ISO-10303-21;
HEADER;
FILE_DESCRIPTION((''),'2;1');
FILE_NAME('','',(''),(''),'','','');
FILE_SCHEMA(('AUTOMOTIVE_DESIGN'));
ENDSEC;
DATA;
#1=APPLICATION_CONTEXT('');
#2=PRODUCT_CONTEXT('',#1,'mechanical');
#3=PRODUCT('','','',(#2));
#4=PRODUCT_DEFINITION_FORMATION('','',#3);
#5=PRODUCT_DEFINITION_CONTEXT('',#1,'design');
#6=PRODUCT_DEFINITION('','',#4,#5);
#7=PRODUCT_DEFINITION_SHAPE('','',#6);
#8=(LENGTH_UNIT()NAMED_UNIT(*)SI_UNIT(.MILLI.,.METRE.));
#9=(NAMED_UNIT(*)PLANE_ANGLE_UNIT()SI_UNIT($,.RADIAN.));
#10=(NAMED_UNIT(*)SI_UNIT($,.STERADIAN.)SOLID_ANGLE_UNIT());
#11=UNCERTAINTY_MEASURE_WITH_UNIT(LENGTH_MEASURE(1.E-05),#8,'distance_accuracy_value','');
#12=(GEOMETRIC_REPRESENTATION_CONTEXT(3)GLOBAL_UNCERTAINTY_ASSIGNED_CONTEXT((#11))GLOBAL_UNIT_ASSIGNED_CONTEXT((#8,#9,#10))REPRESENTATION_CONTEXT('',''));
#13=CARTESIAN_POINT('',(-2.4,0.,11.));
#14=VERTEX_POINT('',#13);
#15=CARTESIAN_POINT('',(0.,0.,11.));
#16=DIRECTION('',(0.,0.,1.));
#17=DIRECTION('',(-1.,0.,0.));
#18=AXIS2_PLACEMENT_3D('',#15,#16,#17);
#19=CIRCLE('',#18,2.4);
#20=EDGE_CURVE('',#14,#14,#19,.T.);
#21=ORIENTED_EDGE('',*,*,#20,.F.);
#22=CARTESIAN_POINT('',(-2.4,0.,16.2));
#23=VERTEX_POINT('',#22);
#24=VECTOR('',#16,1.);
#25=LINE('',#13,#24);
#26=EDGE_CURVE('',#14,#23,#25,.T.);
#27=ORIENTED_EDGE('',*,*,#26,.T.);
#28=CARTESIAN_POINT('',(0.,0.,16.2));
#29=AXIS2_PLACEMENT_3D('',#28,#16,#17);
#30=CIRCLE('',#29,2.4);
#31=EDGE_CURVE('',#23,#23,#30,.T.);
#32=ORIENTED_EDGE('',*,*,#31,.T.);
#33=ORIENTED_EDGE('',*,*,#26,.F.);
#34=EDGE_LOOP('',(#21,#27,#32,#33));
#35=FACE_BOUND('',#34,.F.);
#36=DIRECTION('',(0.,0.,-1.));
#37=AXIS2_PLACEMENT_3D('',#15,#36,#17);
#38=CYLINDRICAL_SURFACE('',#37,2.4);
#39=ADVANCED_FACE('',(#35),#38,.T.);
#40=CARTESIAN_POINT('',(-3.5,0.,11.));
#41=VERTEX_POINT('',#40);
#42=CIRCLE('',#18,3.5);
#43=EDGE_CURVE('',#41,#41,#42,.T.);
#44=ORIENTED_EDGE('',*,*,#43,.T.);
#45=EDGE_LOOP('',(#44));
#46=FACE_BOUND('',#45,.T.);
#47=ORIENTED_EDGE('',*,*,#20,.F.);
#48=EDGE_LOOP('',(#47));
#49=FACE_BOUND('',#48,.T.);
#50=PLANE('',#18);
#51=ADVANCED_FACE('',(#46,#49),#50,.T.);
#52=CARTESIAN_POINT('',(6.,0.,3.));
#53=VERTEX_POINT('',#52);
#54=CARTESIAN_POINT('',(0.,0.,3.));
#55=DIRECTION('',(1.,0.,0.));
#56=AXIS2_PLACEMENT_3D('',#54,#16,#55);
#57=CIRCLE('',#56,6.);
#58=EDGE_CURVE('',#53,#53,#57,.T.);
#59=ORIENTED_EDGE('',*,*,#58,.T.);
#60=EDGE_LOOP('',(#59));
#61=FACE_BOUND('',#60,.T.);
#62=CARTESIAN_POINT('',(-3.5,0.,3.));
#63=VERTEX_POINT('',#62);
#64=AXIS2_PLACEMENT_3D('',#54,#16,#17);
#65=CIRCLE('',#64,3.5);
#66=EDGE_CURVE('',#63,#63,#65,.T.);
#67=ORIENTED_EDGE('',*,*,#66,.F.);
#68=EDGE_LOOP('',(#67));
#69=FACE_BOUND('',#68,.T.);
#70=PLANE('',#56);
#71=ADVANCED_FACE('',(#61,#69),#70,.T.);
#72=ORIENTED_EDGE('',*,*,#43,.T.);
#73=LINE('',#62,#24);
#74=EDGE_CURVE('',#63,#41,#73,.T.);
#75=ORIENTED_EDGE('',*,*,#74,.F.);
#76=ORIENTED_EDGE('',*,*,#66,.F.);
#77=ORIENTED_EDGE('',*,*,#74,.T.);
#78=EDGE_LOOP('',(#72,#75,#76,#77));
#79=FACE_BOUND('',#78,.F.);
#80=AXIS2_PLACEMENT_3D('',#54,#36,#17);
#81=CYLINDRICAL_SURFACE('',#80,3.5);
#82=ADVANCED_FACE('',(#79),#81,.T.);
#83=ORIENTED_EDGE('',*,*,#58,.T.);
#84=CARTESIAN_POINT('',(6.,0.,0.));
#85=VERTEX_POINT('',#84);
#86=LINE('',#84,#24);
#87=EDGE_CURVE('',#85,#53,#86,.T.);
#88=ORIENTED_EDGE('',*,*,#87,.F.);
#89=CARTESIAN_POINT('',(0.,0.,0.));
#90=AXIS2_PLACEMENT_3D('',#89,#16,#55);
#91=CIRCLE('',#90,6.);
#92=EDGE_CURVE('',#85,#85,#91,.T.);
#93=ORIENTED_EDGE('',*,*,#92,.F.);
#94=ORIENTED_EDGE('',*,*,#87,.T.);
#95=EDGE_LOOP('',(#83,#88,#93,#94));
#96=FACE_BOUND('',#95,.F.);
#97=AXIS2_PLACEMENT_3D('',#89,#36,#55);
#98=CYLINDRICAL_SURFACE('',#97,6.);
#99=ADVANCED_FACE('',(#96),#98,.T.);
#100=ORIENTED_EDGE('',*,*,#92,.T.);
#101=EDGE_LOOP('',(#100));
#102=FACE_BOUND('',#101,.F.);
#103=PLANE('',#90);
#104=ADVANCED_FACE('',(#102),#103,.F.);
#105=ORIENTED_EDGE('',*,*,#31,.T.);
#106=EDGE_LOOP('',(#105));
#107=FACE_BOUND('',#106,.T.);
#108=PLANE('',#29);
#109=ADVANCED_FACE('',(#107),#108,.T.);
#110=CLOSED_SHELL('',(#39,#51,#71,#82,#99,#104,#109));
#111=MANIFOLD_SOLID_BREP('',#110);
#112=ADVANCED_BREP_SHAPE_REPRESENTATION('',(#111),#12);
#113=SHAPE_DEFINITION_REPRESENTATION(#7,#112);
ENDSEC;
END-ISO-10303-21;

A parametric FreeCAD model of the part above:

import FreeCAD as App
import Part
import Sketcher
Q = App.Units.Quantity

doc = App.newDocument("Part")
body = doc.addObject("PartDesign::Body", "Body")

sketch1 = body.newObject("Sketcher::SketchObject", "Sketch")
sketch1.AttachmentSupport = (doc.getObject("XY_Plane"), [""])
sketch1.MapMode = "FlatFace"
sketch1.addGeometry(Part.Circle(App.Vector(0, 0, 0), App.Vector(0, 0, 1), 6), False)
sketch1.addConstraint(Sketcher.Constraint("Coincident", 0, 3, -1, 1))
sketch1.addConstraint(Sketcher.Constraint("Diameter", 0, Q("12 mm")))
pad1 = body.newObject("PartDesign::Pad", "Pad")
pad1.Profile = sketch1
pad1.Length = 3

sketch2 = body.newObject("Sketcher::SketchObject", "Sketch001")
sketch2.AttachmentSupport = (doc.getObject("XY_Plane"), [""])
sketch2.MapMode = "FlatFace"
sketch2.AttachmentOffset = App.Placement(App.Vector(0, 0, 3), App.Rotation())
sketch2.addGeometry(Part.Circle(App.Vector(0, 0, 0), App.Vector(0, 0, 1), 3.5), False)
sketch2.addConstraint(Sketcher.Constraint("Coincident", 0, 3, -1, 1))
sketch2.addConstraint(Sketcher.Constraint("Diameter", 0, Q("7 mm")))
pad2 = body.newObject("PartDesign::Pad", "Pad001")
pad2.Profile = sketch2
pad2.Length = 8

sketch3 = body.newObject("Sketcher::SketchObject", "Sketch002")
sketch3.AttachmentSupport = (doc.getObject("XY_Plane"), [""])
sketch3.MapMode = "FlatFace"
sketch3.AttachmentOffset = App.Placement(App.Vector(0, 0, 11), App.Rotation())
sketch3.addGeometry(Part.Circle(App.Vector(0, 0, 0), App.Vector(0, 0, 1), 2.4), False)
sketch3.addConstraint(Sketcher.Constraint("Coincident", 0, 3, -1, 1))
sketch3.addConstraint(Sketcher.Constraint("Diameter", 0, Q("4.8 mm")))
pad3 = body.newObject("PartDesign::Pad", "Pad002")
pad3.Profile = sketch3
pad3.Length = 5.2

doc.recompute()
